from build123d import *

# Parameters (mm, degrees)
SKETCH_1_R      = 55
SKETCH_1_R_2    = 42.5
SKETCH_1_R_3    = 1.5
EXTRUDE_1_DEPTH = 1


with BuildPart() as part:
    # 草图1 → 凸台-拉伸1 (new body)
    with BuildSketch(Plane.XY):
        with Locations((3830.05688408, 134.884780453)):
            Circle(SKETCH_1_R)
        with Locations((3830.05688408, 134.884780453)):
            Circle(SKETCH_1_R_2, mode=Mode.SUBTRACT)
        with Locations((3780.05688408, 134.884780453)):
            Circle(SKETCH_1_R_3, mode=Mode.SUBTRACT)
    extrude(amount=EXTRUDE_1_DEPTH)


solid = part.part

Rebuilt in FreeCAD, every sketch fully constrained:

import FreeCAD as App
import Part
import Sketcher

V = App.Vector
Q = App.Units.Quantity

doc = App.newDocument("Part")
body = doc.addObject("PartDesign::Body", "Body")

# Sketch on XY plane
sketch1 = body.newObject("Sketcher::SketchObject", "Sketch")
sketch1.AttachmentSupport = (doc.getObject("XY_Plane"), [""])
sketch1.MapMode = "FlatFace"
sketch1.addGeometry([
    Part.Circle(V(3830.1, 134.9, 0), V(0, 0, 1), 55),
    Part.Circle(V(3780.1, 134.9, 0), V(0, 0, 1), 1.5),
    Part.Circle(V(3830.1, 134.9, 0), V(0, 0, 1), 42.5),
], False)
sketch1.addConstraint([
    Sketcher.Constraint("Coincident", 2, 3, 0, 3),
    Sketcher.Constraint("Horizontal", 0, 3, 1, 3),
    Sketcher.Constraint("Diameter", 0, Q("110 mm")),
    Sketcher.Constraint("Diameter", 1, Q("3 mm")),
    Sketcher.Constraint("Diameter", 2, Q("85 mm")),
    Sketcher.Constraint("DistanceX", 1, 3, 0, 3, Q("50 mm")),
    Sketcher.Constraint("DistanceY", -1, 1, 0, 3, Q("134.88478 mm")),
    Sketcher.Constraint("DistanceX", -1, 1, 0, 3, Q("3830.056884 mm")),
])
pad1 = body.newObject("PartDesign::Pad", "Pad")
pad1.Profile = sketch1
pad1.Length = 1

doc.recompute()
